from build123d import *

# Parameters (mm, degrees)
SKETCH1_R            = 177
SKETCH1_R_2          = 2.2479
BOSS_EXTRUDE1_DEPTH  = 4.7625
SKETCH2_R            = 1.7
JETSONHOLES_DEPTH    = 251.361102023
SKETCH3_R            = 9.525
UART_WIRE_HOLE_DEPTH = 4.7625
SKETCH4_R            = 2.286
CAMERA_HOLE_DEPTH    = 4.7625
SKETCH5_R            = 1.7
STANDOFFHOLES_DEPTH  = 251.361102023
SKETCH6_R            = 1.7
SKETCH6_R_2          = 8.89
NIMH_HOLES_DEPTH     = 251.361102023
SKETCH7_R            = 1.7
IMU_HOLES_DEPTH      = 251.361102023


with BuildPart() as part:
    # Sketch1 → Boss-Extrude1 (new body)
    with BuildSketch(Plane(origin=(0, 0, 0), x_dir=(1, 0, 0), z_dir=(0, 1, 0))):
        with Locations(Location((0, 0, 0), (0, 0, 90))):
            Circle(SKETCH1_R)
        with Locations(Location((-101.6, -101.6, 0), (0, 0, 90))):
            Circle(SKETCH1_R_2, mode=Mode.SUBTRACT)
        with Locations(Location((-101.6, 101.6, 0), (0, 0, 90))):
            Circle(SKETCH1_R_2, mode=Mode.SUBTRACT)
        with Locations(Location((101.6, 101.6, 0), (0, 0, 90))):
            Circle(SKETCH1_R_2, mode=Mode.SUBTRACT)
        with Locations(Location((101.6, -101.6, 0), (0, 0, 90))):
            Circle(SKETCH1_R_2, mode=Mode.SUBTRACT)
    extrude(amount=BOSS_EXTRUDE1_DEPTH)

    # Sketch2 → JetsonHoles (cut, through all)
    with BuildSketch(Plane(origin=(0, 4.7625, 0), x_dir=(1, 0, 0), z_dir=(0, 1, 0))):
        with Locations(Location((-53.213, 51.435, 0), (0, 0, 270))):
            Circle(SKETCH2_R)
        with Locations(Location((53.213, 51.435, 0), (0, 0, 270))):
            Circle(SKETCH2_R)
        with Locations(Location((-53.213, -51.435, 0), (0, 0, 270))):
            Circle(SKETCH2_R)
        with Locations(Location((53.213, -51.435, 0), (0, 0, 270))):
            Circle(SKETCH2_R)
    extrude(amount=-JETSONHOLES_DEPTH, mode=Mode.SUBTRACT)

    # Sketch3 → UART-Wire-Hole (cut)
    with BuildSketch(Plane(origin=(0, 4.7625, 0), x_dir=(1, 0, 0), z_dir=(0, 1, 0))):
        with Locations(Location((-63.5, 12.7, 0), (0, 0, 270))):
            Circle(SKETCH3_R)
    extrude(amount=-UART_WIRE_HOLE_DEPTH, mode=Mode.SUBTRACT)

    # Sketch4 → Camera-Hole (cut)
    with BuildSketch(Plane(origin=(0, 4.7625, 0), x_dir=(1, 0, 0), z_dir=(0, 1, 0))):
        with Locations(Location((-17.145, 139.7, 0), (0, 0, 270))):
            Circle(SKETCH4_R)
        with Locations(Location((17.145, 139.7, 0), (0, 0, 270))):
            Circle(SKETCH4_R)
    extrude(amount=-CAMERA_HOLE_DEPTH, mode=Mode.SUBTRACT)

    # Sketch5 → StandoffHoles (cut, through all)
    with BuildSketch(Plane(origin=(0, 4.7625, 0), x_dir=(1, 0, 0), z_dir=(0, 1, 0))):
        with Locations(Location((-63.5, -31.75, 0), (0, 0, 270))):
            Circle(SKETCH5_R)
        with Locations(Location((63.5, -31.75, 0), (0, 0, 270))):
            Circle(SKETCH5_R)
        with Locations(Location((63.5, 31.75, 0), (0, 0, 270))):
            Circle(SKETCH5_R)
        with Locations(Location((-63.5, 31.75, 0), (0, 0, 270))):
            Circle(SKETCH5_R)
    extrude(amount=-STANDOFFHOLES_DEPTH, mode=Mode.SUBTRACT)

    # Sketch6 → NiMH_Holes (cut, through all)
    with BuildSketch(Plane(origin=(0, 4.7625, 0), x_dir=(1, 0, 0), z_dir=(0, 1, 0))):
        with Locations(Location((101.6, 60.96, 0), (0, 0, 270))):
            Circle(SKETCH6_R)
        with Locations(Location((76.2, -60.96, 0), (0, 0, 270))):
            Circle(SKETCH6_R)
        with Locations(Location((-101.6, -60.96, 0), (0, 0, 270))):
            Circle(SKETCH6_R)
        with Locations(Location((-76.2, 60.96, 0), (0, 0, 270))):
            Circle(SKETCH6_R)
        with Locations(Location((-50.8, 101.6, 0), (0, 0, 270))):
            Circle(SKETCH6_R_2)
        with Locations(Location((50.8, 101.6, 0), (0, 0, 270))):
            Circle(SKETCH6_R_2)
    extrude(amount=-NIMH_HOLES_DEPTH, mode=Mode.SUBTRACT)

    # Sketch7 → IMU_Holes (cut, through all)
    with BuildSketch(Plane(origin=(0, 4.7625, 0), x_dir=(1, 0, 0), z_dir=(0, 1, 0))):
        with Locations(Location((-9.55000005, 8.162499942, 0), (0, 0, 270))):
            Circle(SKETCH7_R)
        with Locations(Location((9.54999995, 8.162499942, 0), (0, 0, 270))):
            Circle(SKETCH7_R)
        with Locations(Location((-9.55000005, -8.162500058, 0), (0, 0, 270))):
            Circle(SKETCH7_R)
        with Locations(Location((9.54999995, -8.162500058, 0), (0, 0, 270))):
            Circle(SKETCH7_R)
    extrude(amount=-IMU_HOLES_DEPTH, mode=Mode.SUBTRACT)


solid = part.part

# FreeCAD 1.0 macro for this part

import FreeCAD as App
import Part
import Sketcher
Q = App.Units.Quantity

doc = App.newDocument("Part")
params = doc.addObject("Spreadsheet::Sheet", "Params")
for row, (alias, value) in enumerate([
    ("sketch1_diameter", "0.177 in"),
    ("pad1_length", "0.1875 in"),
    ("sketch3_diameter", "0.75 in"),
    ("pocket2_length", "0.1875 in"),
    ("sketch4_diameter", "0.18 in"),
    ("pocket3_length", "0.1875 in"),
    ("sketch6_diameter", "0.7 in"),
], start=1):
    params.set(f"A{row}", alias)
    params.set(f"B{row}", "=" + value)
    params.setAlias(f"B{row}", alias)

body = doc.addObject("PartDesign::Body", "Body")

sketch1 = body.newObject("Sketcher::SketchObject", "Sketch")
sketch1.AttachmentSupport = (doc.getObject("XZ_Plane"), [""])
sketch1.MapMode = "FlatFace"
sketch1.addGeometry([
    Part.Circle(App.Vector(0, 0, 0), App.Vector(0, 0, 1), 177),
    Part.Circle(App.Vector(101.6, 101.6, 0), App.Vector(0, 0, 1), 2.2),
    Part.Circle(App.Vector(101.6, -101.6, 0), App.Vector(0, 0, 1), 2.2),
    Part.Circle(App.Vector(-101.6, 101.6, 0), App.Vector(0, 0, 1), 2.2),
    Part.Circle(App.Vector(-101.6, -101.6, 0), App.Vector(0, 0, 1), 2.2),
], False)
sketch1.addConstraint([
    Sketcher.Constraint("Coincident", 0, 3, -1, 1),
    Sketcher.Constraint("Equal", 1, 2),
    Sketcher.Constraint("Equal", 2, 3),
    Sketcher.Constraint("Equal", 3, 4),
    Sketcher.Constraint("Symmetric", 2, 3, 3, 3, -1, 1),
    Sketcher.Constraint("Symmetric", 1, 3, 4, 3, -1, 1),
    Sketcher.Constraint("Symmetric", 1, 3, 3, 3, -2),
    Sketcher.Constraint("Diameter", 1, Q("0.177 in")),
    Sketcher.Constraint("DistanceX", -1, 1, 1, 3, Q("4 in")),
    Sketcher.Constraint("DistanceY", -1, 1, 1, 3, Q("4 in")),
    Sketcher.Constraint("Diameter", 0, 354.0),
])
sketch1.setExpression("Constraints[7]", "Params.sketch1_diameter")
pad1 = body.newObject("PartDesign::Pad", "Pad")
pad1.Profile = sketch1
pad1.setExpression("Length", "Params.pad1_length")
pad1.Reversed = True

sketch2 = body.newObject("Sketcher::SketchObject", "Sketch001")
sketch2.AttachmentSupport = (doc.getObject("XZ_Plane"), [""])
sketch2.MapMode = "FlatFace"
sketch2.AttachmentOffset = App.Placement(App.Vector(0, 0, -0.1875 * 25.4), App.Rotation())
sketch2.addGeometry([
    Part.Circle(App.Vector(-53.2, -51.4, 0), App.Vector(0, 0, 1), 1.7),
    Part.Circle(App.Vector(53.2, -51.4, 0), App.Vector(0, 0, 1), 1.7),
    Part.Circle(App.Vector(-53.2, 51.4, 0), App.Vector(0, 0, 1), 1.7),
    Part.Circle(App.Vector(53.2, 51.4, 0), App.Vector(0, 0, 1), 1.7),
], False)
sketch2.addConstraint([
    Sketcher.Constraint("Equal", 0, 1),
    Sketcher.Constraint("Equal", 1, 2),
    Sketcher.Constraint("Equal", 2, 3),
    Sketcher.Constraint("Symmetric", 1, 3, 2, 3, -1, 1),
    Sketcher.Constraint("Symmetric", 0, 3, 3, 3, -1, 1),
    Sketcher.Constraint("Symmetric", 0, 3, 1, 3, -2),
    Sketcher.Constraint("Diameter", 0, 3.4),
    Sketcher.Constraint("DistanceX", 0, 3, 1, 3, Q("4.19 in")),
    Sketcher.Constraint("DistanceY", 0, 3, 2, 3, Q("4.05 in")),
])
pocket1 = body.newObject("PartDesign::Pocket", "Pocket")
pocket1.Profile = sketch2
pocket1.Type = "ThroughAll"
pocket1.Reversed = True

sketch3 = body.newObject("Sketcher::SketchObject", "Sketch002")
sketch3.AttachmentSupport = (doc.getObject("XZ_Plane"), [""])
sketch3.MapMode = "FlatFace"
sketch3.AttachmentOffset = App.Placement(App.Vector(0, 0, -0.1875 * 25.4), App.Rotation())
sketch3.addGeometry(Part.Circle(App.Vector(-64, -13, 0), App.Vector(0, 0, 1), 10), False)
sketch3.addConstraint([
    Sketcher.Constraint("Diameter", 0, Q("0.75 in")),
    Sketcher.Constraint("DistanceX", 0, 3, -1, 1, Q("2.5 in")),
    Sketcher.Constraint("DistanceY", 0, 3, -1, 1, Q("0.5 in")),
])
sketch3.setExpression("Constraints[0]", "Params.sketch3_diameter")
pocket2 = body.newObject("PartDesign::Pocket", "Pocket001")
pocket2.Profile = sketch3
pocket2.setExpression("Length", "Params.pocket2_length")
pocket2.Reversed = True

sketch4 = body.newObject("Sketcher::SketchObject", "Sketch003")
sketch4.AttachmentSupport = (doc.getObject("XZ_Plane"), [""])
sketch4.MapMode = "FlatFace"
sketch4.AttachmentOffset = App.Placement(App.Vector(0, 0, -0.1875 * 25.4), App.Rotation())
sketch4.addGeometry([
    Part.Circle(App.Vector(-17.1, -139.7, 0), App.Vector(0, 0, 1), 2.3),
    Part.Circle(App.Vector(17.1, -139.7, 0), App.Vector(0, 0, 1), 2.3),
], False)
sketch4.addConstraint([
    Sketcher.Constraint("Equal", 0, 1),
    Sketcher.Constraint("Symmetric", 0, 3, 1, 3, -2),
    Sketcher.Constraint("Diameter", 0, Q("0.18 in")),
    Sketcher.Constraint("DistanceY", 0, 3, -1, 1, Q("5.5 in")),
    Sketcher.Constraint("DistanceX", 0, 3, 1, 3, Q("1.35 in")),
])
sketch4.setExpression("Constraints[2]", "Params.sketch4_diameter")
pocket3 = body.newObject("PartDesign::Pocket", "Pocket002")
pocket3.Profile = sketch4
pocket3.setExpression("Length", "Params.pocket3_length")
pocket3.Reversed = True

sketch5 = body.newObject("Sketcher::SketchObject", "Sketch004")
sketch5.AttachmentSupport = (doc.getObject("XZ_Plane"), [""])
sketch5.MapMode = "FlatFace"
sketch5.AttachmentOffset = App.Placement(App.Vector(0, 0, -0.1875 * 25.4), App.Rotation())
sketch5.addGeometry([
    Part.Circle(App.Vector(-63.5, 31.8, 0), App.Vector(0, 0, 1), 1.7),
    Part.Circle(App.Vector(63.5, 31.8, 0), App.Vector(0, 0, 1), 1.7),
    Part.Circle(App.Vector(63.5, -31.8, 0), App.Vector(0, 0, 1), 1.7),
    Part.Circle(App.Vector(-63.5, -31.8, 0), App.Vector(0, 0, 1), 1.7),
], False)
sketch5.addConstraint([
    Sketcher.Constraint("Equal", 0, 1),
    Sketcher.Constraint("Equal", 1, 2),
    Sketcher.Constraint("Equal", 2, 3),
    Sketcher.Constraint("Symmetric", 0, 3, 2, 3, -1, 1),
    Sketcher.Constraint("Symmetric", 1, 3, 3, 3, -1, 1),
    Sketcher.Constraint("Symmetric", 0, 3, 1, 3, -2),
    Sketcher.Constraint("DistanceX", 0, 3, 1, 3, Q("5 in")),
    Sketcher.Constraint("DistanceY", 2, 3, 1, 3, Q("2.5 in")),
    Sketcher.Constraint("Diameter", 0, 3.4),
])
pocket4 = body.newObject("PartDesign::Pocket", "Pocket003")
pocket4.Profile = sketch5
pocket4.Type = "ThroughAll"
pocket4.Reversed = True

sketch6 = body.newObject("Sketcher::SketchObject", "Sketch005")
sketch6.AttachmentSupport = (doc.getObject("XZ_Plane"), [""])
sketch6.MapMode = "FlatFace"
sketch6.AttachmentOffset = App.Placement(App.Vector(0, 0, -0.1875 * 25.4), App.Rotation())
sketch6.addGeometry([
    Part.Circle(App.Vector(101.6, -61, 0), App.Vector(0, 0, 1), 1.7),
    Part.Circle(App.Vector(76.2, 61, 0), App.Vector(0, 0, 1), 1.7),
    Part.Circle(App.Vector(-101.6, 61, 0), App.Vector(0, 0, 1), 1.7),
    Part.Circle(App.Vector(-76.2, -61, 0), App.Vector(0, 0, 1), 1.7),
    Part.Circle(App.Vector(-50.8, -101.6, 0), App.Vector(0, 0, 1), 8.9),
    Part.Circle(App.Vector(50.8, -101.6, 0), App.Vector(0, 0, 1), 8.9),
], False)
sketch6.addConstraint([
    Sketcher.Constraint("Equal", 0, 1),
    Sketcher.Constraint("Equal", 1, 2),
    Sketcher.Constraint("Equal", 2, 3),
    Sketcher.Constraint("Equal", 4, 5),
    Sketcher.Constraint("Symmetric", 0, 3, 2, 3, -1, 1),
    Sketcher.Constraint("Symmetric", 1, 3, 3, 3, -1, 1),
    Sketcher.Constraint("Symmetric", 4, 3, 5, 3, -2),
    Sketcher.Constraint("Horizontal", 1, 3, 2, 3),
    Sketcher.Constraint("Diameter", 4, Q("0.7 in")),
    Sketcher.Constraint("DistanceX", -1, 1, 0, 3, Q("4 in")),
    Sketcher.Constraint("DistanceX", -1, 1, 1, 3, Q("3 in")),
    Sketcher.Constraint("DistanceX", 4, 3, -1, 1, Q("2 in")),
    Sketcher.Constraint("DistanceY", 4, 3, -1, 1, Q("4 in")),
    Sketcher.Constraint("DistanceY", 0, 3, -1, 1, Q("2.4 in")),
    Sketcher.Constraint("Diameter", 0, 3.4),
])
sketch6.setExpression("Constraints[8]", "Params.sketch6_diameter")
pocket5 = body.newObject("PartDesign::Pocket", "Pocket004")
pocket5.Profile = sketch6
pocket5.Type = "ThroughAll"
pocket5.Reversed = True

sketch7 = body.newObject("Sketcher::SketchObject", "Sketch006")
sketch7.AttachmentSupport = (doc.getObject("XZ_Plane"), [""])
sketch7.MapMode = "FlatFace"
sketch7.AttachmentOffset = App.Placement(App.Vector(0, 0, -0.1875 * 25.4), App.Rotation())
sketch7.addGeometry([
    Part.Circle(App.Vector(-9.6, -8.2, 0), App.Vector(0, 0, 1), 1.7),
    Part.Circle(App.Vector(9.5, -8.2, 0), App.Vector(0, 0, 1), 1.7),
    Part.Circle(App.Vector(-9.6, 8.2, 0), App.Vector(0, 0, 1), 1.7),
    Part.Circle(App.Vector(9.5, 8.2, 0), App.Vector(0, 0, 1), 1.7),
], False)
sketch7.addConstraint([
    Sketcher.Constraint("Equal", 0, 1),
    Sketcher.Constraint("Equal", 1, 2),
    Sketcher.Constraint("Equal", 2, 3),
    Sketcher.Constraint("Symmetric", 1, 3, 2, 3, -1, 1),
    Sketcher.Constraint("Symmetric", 0, 3, 3, 3, -1, 1),
    Sketcher.Constraint("Symmetric", 0, 3, 1, 3, -2),
    Sketcher.Constraint("Diameter", 0, 3.4),
    Sketcher.Constraint("DistanceX", 0, 3, -1, 1, 9.55),
    Sketcher.Constraint("DistanceY", 0, 3, -1, 1, 8.1625),
])
pocket6 = body.newObject("PartDesign::Pocket", "Pocket005")
pocket6.Profile = sketch7
pocket6.Type = "ThroughAll"
pocket6.Reversed = True

doc.recompute()
